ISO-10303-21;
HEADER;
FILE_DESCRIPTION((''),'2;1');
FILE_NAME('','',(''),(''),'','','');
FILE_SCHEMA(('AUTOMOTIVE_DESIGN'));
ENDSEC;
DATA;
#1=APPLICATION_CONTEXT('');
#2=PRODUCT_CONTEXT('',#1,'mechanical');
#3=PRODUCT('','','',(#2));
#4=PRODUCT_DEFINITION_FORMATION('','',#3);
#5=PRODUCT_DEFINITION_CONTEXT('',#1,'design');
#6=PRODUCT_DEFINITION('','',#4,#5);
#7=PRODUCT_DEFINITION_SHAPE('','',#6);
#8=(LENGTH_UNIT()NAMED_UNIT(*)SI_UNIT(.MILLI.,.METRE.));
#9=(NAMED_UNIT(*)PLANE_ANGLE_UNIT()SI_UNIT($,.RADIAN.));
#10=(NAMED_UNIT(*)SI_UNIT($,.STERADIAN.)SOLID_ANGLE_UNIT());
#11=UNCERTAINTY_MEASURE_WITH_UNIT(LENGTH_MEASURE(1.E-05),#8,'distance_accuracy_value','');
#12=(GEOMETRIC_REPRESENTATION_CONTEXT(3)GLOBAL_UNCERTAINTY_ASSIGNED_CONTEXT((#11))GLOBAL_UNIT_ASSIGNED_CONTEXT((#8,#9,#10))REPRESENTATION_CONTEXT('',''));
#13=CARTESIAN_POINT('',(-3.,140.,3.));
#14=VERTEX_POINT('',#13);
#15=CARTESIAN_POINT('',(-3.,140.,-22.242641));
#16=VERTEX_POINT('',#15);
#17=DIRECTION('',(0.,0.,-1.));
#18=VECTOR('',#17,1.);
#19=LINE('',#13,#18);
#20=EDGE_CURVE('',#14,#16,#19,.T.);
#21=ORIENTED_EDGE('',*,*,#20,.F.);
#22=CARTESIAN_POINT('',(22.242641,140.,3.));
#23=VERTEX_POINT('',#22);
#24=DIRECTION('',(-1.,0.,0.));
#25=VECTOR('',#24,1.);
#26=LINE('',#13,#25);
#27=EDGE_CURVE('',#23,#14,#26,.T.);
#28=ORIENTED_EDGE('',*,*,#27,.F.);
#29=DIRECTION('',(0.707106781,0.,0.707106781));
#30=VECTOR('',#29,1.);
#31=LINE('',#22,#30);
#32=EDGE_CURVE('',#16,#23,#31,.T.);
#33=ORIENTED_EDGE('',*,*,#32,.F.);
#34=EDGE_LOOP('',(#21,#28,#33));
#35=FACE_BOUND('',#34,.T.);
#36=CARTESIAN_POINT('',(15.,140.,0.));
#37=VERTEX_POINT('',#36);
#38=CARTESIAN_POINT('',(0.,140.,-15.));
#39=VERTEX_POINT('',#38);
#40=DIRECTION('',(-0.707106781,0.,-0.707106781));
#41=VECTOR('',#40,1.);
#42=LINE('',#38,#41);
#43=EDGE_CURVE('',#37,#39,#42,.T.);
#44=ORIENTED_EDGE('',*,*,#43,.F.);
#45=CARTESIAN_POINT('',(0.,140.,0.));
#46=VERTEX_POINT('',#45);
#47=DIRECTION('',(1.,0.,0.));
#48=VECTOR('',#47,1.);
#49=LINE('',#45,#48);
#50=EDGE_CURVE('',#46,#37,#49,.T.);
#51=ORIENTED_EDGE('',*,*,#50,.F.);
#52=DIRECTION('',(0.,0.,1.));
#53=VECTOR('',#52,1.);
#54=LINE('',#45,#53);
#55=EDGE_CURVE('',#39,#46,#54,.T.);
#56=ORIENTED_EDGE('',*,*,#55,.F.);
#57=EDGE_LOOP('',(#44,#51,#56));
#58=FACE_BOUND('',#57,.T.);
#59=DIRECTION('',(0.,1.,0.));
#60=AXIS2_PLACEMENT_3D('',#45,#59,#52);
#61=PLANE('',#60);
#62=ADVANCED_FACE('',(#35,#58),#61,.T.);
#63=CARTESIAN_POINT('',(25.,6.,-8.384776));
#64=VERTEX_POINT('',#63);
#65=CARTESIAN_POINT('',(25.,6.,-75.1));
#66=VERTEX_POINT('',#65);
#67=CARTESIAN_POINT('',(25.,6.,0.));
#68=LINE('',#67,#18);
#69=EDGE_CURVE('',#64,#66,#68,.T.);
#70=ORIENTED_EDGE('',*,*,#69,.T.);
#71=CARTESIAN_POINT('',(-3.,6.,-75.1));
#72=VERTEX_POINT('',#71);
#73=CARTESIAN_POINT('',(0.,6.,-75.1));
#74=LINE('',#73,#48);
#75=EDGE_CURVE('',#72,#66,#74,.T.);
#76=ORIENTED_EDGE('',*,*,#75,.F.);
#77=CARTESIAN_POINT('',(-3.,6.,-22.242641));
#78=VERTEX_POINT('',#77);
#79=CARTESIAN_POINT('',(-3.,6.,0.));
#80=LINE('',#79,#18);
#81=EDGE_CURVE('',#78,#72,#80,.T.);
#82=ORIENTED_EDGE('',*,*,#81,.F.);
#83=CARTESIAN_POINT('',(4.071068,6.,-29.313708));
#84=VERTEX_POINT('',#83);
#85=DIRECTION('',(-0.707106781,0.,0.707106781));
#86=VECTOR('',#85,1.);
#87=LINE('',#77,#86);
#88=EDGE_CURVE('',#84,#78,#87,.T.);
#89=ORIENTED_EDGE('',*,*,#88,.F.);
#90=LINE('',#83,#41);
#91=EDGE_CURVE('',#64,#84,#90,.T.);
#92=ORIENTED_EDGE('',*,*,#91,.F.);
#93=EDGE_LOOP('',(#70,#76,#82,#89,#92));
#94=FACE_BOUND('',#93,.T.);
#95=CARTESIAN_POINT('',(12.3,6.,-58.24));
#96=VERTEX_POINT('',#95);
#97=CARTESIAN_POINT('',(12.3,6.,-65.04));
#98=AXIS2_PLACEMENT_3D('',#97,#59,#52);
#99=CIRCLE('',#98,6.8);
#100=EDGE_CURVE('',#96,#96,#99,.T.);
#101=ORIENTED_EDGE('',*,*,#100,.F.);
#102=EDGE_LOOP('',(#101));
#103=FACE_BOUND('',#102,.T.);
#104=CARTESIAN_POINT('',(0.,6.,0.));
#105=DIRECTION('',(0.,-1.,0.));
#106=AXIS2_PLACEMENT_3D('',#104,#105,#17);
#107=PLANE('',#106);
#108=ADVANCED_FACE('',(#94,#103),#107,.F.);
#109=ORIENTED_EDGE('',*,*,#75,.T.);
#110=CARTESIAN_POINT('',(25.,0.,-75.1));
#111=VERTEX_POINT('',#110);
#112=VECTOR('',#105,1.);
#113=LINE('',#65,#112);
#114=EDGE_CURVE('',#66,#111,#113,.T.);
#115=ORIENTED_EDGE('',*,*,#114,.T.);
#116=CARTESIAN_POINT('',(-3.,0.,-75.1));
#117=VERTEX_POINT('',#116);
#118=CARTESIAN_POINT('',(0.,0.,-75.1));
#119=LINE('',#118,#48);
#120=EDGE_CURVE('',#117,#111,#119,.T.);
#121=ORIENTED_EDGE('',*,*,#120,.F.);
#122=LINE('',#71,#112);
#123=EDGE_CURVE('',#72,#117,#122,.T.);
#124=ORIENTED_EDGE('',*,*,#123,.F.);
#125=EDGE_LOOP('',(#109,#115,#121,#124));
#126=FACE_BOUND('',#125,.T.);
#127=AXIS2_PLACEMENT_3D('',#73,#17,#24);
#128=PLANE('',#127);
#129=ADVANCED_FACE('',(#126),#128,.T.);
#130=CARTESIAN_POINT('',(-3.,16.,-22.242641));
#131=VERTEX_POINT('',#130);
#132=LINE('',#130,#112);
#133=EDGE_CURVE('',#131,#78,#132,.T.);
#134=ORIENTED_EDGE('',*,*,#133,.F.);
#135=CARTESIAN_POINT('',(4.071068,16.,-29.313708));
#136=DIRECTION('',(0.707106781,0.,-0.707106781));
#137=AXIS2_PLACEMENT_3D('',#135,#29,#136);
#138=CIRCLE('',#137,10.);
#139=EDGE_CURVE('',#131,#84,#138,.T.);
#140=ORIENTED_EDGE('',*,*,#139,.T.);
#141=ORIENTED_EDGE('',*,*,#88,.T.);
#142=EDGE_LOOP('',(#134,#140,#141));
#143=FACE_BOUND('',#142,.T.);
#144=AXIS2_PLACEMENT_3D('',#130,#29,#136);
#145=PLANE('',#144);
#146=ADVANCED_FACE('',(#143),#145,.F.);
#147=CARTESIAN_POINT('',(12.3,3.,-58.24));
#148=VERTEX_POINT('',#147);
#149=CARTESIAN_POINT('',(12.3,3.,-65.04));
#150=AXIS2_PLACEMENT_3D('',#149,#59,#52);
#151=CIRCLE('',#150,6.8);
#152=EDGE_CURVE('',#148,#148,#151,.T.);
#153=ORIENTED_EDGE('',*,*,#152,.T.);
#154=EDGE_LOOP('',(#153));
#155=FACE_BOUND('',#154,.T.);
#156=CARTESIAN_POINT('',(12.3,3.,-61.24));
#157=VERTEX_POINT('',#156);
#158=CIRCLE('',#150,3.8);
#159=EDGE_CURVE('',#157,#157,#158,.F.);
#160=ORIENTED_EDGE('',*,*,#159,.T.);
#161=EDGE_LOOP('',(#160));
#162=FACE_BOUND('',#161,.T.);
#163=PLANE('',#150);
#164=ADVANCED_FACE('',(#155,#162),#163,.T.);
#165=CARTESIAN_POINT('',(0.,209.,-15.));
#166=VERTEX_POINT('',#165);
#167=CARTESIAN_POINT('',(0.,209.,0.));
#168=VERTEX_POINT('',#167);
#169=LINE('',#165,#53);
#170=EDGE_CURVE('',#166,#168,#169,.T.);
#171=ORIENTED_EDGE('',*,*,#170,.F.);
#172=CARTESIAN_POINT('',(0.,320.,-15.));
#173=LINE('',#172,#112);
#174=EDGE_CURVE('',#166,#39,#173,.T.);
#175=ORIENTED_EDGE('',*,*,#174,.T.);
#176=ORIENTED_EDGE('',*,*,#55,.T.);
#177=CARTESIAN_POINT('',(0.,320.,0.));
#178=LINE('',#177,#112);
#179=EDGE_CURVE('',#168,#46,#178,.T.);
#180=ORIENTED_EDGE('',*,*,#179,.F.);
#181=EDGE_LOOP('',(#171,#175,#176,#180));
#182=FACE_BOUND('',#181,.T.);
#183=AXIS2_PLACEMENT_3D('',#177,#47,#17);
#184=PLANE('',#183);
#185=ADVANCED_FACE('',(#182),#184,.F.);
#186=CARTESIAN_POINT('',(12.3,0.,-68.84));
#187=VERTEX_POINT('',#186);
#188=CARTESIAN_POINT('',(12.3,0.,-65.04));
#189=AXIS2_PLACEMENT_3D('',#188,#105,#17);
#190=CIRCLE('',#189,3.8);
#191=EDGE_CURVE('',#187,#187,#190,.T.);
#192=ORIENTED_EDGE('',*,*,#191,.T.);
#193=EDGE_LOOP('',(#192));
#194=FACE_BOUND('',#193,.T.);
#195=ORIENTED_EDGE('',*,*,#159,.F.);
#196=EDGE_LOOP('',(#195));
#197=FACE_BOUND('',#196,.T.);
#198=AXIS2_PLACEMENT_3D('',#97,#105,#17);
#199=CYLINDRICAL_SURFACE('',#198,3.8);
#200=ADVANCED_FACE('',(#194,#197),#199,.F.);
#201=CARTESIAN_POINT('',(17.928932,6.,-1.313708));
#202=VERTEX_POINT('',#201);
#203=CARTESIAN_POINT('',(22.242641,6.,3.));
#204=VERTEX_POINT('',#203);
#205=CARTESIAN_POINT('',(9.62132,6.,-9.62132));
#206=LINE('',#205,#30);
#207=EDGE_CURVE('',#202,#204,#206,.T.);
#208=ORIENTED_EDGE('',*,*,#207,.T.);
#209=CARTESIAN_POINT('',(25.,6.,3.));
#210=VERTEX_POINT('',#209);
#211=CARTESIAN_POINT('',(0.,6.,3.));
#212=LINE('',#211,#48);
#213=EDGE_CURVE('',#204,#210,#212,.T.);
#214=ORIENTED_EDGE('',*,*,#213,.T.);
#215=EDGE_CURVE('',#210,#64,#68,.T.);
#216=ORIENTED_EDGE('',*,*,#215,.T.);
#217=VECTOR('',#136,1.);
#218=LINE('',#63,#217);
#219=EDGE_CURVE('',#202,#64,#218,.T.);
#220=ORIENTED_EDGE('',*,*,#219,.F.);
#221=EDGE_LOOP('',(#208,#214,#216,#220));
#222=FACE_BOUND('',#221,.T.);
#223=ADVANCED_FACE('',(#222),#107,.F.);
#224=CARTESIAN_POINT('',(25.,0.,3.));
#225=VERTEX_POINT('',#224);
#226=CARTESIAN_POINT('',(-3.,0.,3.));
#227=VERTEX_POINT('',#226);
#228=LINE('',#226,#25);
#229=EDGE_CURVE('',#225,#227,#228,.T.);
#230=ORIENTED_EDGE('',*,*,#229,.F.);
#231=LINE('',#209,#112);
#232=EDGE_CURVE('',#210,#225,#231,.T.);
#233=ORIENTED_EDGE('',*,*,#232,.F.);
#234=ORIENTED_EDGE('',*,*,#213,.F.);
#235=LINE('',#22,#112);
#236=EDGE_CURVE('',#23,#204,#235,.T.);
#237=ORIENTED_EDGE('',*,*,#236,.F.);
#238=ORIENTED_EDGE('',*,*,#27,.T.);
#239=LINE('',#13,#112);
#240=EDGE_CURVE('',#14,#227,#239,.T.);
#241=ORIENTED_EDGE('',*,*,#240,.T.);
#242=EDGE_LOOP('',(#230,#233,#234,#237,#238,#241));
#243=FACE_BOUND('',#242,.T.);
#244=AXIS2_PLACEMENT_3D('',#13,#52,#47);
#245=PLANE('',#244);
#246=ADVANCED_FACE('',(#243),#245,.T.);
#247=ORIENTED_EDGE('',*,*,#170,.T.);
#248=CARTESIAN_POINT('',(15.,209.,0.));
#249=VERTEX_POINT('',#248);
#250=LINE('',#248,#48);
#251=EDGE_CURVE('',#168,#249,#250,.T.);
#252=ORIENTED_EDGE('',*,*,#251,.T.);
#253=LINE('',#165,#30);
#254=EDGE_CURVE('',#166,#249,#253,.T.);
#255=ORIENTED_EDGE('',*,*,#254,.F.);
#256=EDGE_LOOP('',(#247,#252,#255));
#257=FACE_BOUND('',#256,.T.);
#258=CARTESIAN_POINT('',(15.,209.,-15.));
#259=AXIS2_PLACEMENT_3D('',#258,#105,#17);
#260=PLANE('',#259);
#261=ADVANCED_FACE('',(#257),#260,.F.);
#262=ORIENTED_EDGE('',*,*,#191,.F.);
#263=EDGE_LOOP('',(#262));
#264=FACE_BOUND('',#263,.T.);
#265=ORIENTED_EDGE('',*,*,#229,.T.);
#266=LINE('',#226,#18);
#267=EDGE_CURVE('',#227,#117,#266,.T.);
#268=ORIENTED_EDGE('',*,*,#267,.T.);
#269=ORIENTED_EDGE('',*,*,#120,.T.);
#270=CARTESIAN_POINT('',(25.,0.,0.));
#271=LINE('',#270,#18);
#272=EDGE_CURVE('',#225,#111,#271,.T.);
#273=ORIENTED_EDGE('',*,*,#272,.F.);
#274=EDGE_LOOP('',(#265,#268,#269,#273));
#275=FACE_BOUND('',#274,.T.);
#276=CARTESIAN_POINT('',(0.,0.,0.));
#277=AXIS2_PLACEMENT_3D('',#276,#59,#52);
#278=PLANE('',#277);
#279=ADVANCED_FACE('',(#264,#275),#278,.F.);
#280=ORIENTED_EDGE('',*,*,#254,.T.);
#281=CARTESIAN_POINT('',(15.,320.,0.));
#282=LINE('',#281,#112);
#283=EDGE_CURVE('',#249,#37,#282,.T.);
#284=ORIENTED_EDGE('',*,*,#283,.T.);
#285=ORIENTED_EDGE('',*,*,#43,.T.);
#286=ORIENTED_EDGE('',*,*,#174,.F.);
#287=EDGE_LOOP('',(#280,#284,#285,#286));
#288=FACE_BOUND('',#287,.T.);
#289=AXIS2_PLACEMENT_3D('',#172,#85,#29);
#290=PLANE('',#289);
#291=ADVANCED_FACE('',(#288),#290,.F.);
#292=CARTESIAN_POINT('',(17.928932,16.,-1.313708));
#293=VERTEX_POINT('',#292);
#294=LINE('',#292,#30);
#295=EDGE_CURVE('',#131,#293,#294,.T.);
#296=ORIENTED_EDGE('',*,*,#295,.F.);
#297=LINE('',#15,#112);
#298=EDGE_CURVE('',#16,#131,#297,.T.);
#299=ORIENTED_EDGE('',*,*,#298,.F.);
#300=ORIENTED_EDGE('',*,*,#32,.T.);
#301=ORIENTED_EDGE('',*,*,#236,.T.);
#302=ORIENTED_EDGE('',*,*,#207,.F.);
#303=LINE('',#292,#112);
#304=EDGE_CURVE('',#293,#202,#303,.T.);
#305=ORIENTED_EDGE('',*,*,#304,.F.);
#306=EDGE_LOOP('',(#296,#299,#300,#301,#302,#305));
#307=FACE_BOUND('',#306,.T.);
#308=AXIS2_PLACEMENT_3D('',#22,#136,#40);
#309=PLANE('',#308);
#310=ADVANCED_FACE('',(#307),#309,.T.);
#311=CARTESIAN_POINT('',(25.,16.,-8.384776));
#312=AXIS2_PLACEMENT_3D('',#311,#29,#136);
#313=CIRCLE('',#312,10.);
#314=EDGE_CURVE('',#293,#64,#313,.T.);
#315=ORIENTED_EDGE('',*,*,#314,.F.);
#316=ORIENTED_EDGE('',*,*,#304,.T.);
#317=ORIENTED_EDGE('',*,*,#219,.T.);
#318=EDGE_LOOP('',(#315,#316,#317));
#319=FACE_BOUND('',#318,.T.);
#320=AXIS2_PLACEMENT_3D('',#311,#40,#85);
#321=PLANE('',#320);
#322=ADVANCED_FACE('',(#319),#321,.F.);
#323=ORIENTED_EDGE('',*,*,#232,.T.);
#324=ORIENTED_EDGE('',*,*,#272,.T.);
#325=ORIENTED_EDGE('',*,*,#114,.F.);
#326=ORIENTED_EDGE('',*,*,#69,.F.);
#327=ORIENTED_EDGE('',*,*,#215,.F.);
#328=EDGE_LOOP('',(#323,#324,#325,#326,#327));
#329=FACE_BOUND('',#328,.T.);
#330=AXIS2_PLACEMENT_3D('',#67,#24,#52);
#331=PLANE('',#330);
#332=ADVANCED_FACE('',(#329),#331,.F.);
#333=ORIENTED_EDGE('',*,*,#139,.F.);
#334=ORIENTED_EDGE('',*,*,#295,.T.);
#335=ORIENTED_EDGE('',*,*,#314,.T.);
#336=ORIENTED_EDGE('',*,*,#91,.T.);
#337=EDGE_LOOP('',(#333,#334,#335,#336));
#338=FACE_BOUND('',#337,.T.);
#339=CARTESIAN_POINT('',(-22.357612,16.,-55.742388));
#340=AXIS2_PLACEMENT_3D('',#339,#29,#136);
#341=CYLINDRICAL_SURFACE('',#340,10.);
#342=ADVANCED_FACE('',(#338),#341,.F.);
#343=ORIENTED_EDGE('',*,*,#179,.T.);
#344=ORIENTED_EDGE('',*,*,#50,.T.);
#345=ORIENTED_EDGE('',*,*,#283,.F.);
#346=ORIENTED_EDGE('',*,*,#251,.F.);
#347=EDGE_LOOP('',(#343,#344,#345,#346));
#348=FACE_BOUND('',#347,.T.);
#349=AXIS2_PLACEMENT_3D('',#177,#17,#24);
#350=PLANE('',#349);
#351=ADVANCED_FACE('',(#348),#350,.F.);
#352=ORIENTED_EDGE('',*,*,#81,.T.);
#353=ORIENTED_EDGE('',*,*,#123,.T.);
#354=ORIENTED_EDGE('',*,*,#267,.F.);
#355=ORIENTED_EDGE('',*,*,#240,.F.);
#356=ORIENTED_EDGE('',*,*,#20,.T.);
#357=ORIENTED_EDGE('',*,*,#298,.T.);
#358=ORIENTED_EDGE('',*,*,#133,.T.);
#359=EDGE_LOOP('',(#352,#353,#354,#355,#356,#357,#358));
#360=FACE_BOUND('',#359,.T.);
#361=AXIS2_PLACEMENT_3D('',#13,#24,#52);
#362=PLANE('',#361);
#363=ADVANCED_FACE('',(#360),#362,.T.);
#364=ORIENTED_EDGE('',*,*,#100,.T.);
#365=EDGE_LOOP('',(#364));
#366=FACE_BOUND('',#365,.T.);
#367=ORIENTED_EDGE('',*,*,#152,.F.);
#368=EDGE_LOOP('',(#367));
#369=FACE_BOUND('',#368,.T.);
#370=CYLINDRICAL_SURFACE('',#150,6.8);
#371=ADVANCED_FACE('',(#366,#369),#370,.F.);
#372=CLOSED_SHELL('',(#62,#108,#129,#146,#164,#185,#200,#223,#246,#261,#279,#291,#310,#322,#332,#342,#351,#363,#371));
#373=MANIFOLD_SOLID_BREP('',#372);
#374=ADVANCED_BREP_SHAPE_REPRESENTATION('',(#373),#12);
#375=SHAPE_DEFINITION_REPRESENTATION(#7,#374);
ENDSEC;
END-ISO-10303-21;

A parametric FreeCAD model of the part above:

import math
import FreeCAD as App
import Part
import Sketcher
from FreeCAD import Vector
Q = App.Units.Quantity


def add_polygon(sketch, points):
    """Adds a closed chain of lines whose ends are joined by coincident constraints."""
    first, n = sketch.GeometryCount, len(points)
    for a, b in zip(points, points[1:] + points[:1]):
        sketch.addGeometry(Part.LineSegment(App.Vector(*a, 0), App.Vector(*b, 0)), False)
    for i in range(n):
        sketch.addConstraint(Sketcher.Constraint("Coincident", first + i, 2, first + (i + 1) % n, 1))

doc = App.newDocument("Part")
body = doc.addObject("PartDesign::Body", "Body")

sketch1 = body.newObject("Sketcher::SketchObject", "Sketch")
sketch1.AttachmentSupport = (doc.getObject("XZ_Plane"), [""])
sketch1.MapMode = "FlatFace"
add_polygon(sketch1, [(0, -15), (0, 0), (15, 0)])
sketch1.addConstraint([
    Sketcher.Constraint("Vertical", 0),
    Sketcher.Constraint("Horizontal", 1),
    Sketcher.Constraint("Coincident", 0, 2, -1, 1),
    Sketcher.Constraint("Equal", 1, 0),
    Sketcher.Constraint("DistanceX", 1, 1, 1, 2, Q("15 mm")),
])
pad1 = body.newObject("PartDesign::Pad", "Pad")
pad1.Profile = sketch1
pad1.Length = 320
pad1.Reversed = True

sketch2 = body.newObject("Sketcher::SketchObject", "Sketch001")
sketch2.AttachmentSupport = (doc.getObject("XY_Plane"), [""])
sketch2.MapMode = "FlatFace"
add_polygon(sketch2, [(0, 320), (0, 209), (15, 209), (15, 320)])
sketch2.addConstraint([
    Sketcher.Constraint("Vertical", 0),
    Sketcher.Constraint("Horizontal", 1),
    Sketcher.Constraint("Vertical", 2),
    Sketcher.Constraint("Horizontal", 3),
    Sketcher.Constraint("PointOnObject", 0, 2, -2),
    Sketcher.Constraint("DistanceX", 1, 1, 1, 2, Q("15 mm")),
    Sketcher.Constraint("DistanceY", 0, 2, 0, 1, Q("111 mm")),
    Sketcher.Constraint("DistanceY", -1, 1, 0, 2, Q("209 mm")),
])
pocket1 = body.newObject("PartDesign::Pocket", "Pocket")
pocket1.Profile = sketch2
pocket1.Type = "ThroughAll"

sketch3 = body.newObject("Sketcher::SketchObject", "Sketch002")
sketch3.AttachmentSupport = (doc.getObject("XZ_Plane"), [""])
sketch3.MapMode = "FlatFace"
add_polygon(sketch3, [(-3, 3), (-3, -22), (22, 3)])
sketch3.addConstraint([
    Sketcher.Constraint("Vertical", 0),
    Sketcher.Constraint("Horizontal", 2),
    Sketcher.Constraint("Equal", 2, 0),
    Sketcher.Constraint("DistanceX", 0, 2, -1, 1, Q("3 mm")),
    Sketcher.Constraint("DistanceY", -1, 1, 1, 2, Q("3 mm")),
    Sketcher.Constraint("DistanceX", 2, 2, 2, 1, Q("25.242641 mm")),
])
pad2 = body.newObject("PartDesign::Pad", "Pad001")
pad2.Profile = sketch3
pad2.Length = 140
pad2.Reversed = True

sketch4 = body.newObject("Sketcher::SketchObject", "Sketch003")
sketch4.AttachmentSupport = (doc.getObject("XZ_Plane"), [""])
sketch4.MapMode = "FlatFace"
add_polygon(sketch4, [(-3, 3), (-3, -75.1), (25, -75.1), (25, 3)])
sketch4.addGeometry(Part.Circle(Vector(12.3, -65, 0), Vector(0, 0, 1), 3.8), False)
sketch4.addConstraint([
    Sketcher.Constraint("Vertical", 0),
    Sketcher.Constraint("Horizontal", 1),
    Sketcher.Constraint("Vertical", 2),
    Sketcher.Constraint("Horizontal", 3),
    Sketcher.Constraint("Diameter", 4, Q("7.6 mm")),
    Sketcher.Constraint("DistanceX", 1, 1, 1, 2, Q("28 mm")),
    Sketcher.Constraint("DistanceY", 0, 2, 0, 1, Q("78.1 mm")),
    Sketcher.Constraint("DistanceX", 0, 2, -1, 1, Q("3 mm")),
    Sketcher.Constraint("DistanceY", -1, 1, 2, 2, Q("3 mm")),
    Sketcher.Constraint("DistanceX", -1, 1, 4, 3, Q("12.3 mm")),
    Sketcher.Constraint("DistanceY", 4, 3, -1, 1, Q("65.04 mm")),
])
pad3 = body.newObject("PartDesign::Pad", "Pad002")
pad3.Profile = sketch4
pad3.Length = 6
pad3.Reversed = True

sketch5 = body.newObject("Sketcher::SketchObject", "Sketch004")
sketch5.AttachmentSupport = (doc.getObject("XZ_Plane"), [""])
sketch5.MapMode = "FlatFace"
sketch5.AttachmentOffset = App.Placement(Vector(0, 0, -6), App.Rotation())
add_polygon(sketch5, [(4, -29), (-3, -22), (18, -1), (25, -8)])
sketch5.addConstraint([
    Sketcher.Constraint("Perpendicular", 0, 1),
    Sketcher.Constraint("Perpendicular", 1, 2),
    Sketcher.Constraint("Perpendicular", 2, 3),
    Sketcher.Constraint("Angle", 0, Q("135 deg")),
    Sketcher.Constraint("Distance", 0, Q("10 mm")),
    Sketcher.Constraint("DistanceX", 0, 2, -1, 1, Q("3 mm")),
    Sketcher.Constraint("DistanceX", -1, 1, 2, 2, Q("25 mm")),
    Sketcher.Constraint("DistanceY", 0, 2, -1, 1, Q("22.242641 mm")),
])
pad4 = body.newObject("PartDesign::Pad", "Pad003")
pad4.Profile = sketch5
pad4.Length = 10
pad4.Reversed = True

sketch6 = body.newObject("Sketcher::SketchObject", "Sketch005")
sketch6.Placement = App.Placement(Vector(8.307612, 0, 8.307612), App.Rotation(Vector(0.707106781, 0, -0.707106781), Vector(0, 0.999999999, 0), Vector(0.707106781, 0, 0.707106781), "ZXY"))
sketch6.addGeometry([
    Part.LineSegment(Vector(24, 16, 0), Vector(14, 16, 0)),
    Part.ArcOfCircle(Part.Circle(Vector(24, 16, 0), Vector(0, 0, 1), 10), math.radians(180), math.radians(270)),
    Part.LineSegment(Vector(24, 6, 0), Vector(24, 16, 0)),
], False)
sketch6.addConstraint([
    Sketcher.Constraint("Coincident", 0, 2, 1, 1),
    Sketcher.Constraint("Coincident", 1, 2, 2, 1),
    Sketcher.Constraint("Coincident", 2, 2, 0, 1),
    Sketcher.Constraint("Horizontal", 0),
    Sketcher.Constraint("Vertical", 2),
    Sketcher.Constraint("Coincident", 2, 2, 1, 3),
    Sketcher.Constraint("Radius", 1, Q("10 mm")),
    Sketcher.Constraint("DistanceY", -1, 1, 1, 3, Q("16 mm")),
    Sketcher.Constraint("DistanceX", -1, 1, 1, 3, Q("23.606602 mm")),
])
pocket2 = body.newObject("PartDesign::Pocket", "Pocket001")
pocket2.Profile = sketch6
pocket2.Type = "ThroughAll"

sketch7 = body.newObject("Sketcher::SketchObject", "Sketch006")
sketch7.AttachmentSupport = (doc.getObject("XZ_Plane"), [""])
sketch7.MapMode = "FlatFace"
sketch7.AttachmentOffset = App.Placement(Vector(0, 0, -6), App.Rotation())
sketch7.addGeometry(Part.Circle(Vector(12, -65, 0), Vector(0, 0, 1), 7), False)
sketch7.addConstraint([
    Sketcher.Constraint("Diameter", 0, Q("13.6 mm")),
    Sketcher.Constraint("DistanceX", -1, 1, 0, 3, Q("12.3 mm")),
    Sketcher.Constraint("DistanceY", 0, 3, -1, 1, Q("65.04 mm")),
])
pocket3 = body.newObject("PartDesign::Pocket", "Pocket002")
pocket3.Profile = sketch7
pocket3.Length = 3
pocket3.Reversed = True

doc.recompute()
